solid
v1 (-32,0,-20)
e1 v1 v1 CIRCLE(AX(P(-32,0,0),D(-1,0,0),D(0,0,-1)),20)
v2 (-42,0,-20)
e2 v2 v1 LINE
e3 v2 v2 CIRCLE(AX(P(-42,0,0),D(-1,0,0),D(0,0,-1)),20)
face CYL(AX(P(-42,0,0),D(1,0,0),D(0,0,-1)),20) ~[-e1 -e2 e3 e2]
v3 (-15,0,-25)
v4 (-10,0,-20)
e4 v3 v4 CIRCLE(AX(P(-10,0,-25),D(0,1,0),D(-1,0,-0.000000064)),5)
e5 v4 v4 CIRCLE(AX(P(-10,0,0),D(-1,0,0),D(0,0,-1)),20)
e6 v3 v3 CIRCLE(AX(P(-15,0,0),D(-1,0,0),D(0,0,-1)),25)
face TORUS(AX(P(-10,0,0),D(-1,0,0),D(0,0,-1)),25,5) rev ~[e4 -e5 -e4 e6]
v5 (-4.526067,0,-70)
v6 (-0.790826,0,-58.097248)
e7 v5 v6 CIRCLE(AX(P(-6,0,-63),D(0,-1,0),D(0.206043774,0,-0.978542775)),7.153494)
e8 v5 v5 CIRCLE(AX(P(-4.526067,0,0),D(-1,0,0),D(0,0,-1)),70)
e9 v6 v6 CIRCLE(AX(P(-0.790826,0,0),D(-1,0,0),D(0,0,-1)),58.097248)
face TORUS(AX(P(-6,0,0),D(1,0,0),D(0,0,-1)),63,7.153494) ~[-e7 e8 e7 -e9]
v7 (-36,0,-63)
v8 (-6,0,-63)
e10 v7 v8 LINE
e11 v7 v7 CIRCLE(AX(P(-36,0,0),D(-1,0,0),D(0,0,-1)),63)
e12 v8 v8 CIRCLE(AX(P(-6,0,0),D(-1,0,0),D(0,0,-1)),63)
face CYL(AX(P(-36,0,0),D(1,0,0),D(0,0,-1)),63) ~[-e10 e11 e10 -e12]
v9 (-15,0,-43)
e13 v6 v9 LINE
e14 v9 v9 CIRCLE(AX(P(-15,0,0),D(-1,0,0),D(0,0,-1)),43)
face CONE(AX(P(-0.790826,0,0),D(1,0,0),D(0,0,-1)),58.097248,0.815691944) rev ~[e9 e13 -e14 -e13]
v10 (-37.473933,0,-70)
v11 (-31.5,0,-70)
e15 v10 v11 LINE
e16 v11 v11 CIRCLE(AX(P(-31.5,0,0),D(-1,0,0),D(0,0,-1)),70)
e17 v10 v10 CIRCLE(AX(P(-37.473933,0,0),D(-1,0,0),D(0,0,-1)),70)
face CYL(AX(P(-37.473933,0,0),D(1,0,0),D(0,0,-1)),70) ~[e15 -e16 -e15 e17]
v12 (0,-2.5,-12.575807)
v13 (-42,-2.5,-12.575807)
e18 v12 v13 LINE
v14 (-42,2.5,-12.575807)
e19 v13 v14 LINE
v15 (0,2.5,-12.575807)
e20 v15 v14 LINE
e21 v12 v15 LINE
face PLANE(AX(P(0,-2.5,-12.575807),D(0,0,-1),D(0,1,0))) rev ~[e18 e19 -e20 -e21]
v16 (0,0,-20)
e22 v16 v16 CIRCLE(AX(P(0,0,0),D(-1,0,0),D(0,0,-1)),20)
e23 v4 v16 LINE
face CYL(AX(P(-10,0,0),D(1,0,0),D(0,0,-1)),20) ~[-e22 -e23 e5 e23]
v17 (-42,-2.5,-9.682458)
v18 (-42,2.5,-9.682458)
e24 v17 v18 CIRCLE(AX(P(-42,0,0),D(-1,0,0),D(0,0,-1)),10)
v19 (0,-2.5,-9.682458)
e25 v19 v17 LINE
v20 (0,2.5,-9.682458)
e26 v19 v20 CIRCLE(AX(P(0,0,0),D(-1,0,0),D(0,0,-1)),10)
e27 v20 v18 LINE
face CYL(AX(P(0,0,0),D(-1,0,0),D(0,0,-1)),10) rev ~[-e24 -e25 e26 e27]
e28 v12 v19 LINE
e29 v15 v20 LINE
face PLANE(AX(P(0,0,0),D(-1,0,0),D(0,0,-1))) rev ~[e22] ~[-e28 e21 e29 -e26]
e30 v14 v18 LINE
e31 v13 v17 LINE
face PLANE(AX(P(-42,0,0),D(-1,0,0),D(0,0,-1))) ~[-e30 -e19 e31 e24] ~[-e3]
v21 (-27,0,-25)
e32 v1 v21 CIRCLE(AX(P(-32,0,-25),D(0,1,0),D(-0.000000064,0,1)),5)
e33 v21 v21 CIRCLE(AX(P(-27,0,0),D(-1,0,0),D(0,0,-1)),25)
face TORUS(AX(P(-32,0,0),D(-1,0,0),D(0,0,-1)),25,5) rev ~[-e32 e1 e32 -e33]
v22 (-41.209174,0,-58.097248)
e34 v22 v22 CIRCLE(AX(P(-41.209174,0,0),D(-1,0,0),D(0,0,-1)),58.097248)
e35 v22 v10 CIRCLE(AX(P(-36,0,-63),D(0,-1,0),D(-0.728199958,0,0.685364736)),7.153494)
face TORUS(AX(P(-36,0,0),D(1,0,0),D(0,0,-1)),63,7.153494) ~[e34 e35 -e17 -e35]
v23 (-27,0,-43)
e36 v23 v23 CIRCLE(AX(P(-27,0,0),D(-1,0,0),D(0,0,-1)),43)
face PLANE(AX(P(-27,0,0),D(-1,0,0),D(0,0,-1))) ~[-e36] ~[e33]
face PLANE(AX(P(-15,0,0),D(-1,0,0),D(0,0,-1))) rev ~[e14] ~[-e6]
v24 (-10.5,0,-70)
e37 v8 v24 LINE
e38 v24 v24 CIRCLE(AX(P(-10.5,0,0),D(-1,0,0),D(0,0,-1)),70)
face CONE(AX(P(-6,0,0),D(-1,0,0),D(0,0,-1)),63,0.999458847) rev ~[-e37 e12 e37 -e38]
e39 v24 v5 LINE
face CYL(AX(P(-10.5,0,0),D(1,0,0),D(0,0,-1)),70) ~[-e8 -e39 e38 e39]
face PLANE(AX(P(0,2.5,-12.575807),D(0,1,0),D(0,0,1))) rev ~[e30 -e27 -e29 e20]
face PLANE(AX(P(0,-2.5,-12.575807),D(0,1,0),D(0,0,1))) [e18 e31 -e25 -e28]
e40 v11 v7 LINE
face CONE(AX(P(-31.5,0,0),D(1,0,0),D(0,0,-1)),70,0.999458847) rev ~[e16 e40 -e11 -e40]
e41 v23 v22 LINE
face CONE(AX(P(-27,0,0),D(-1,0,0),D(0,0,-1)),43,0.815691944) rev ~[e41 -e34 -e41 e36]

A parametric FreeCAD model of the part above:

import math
import FreeCAD as App
import Part
import Sketcher

V = App.Vector


def add_polygon(sketch, points):
    """Adds a closed chain of lines whose ends are joined by coincident constraints."""
    first, n = sketch.GeometryCount, len(points)
    for a, b in zip(points, points[1:] + points[:1]):
        sketch.addGeometry(Part.LineSegment(App.Vector(*a, 0), App.Vector(*b, 0)), False)
    for i in range(n):
        sketch.addConstraint(Sketcher.Constraint("Coincident", first + i, 2, first + (i + 1) % n, 1))

doc = App.newDocument("Part")
body = doc.addObject("PartDesign::Body", "Body")

# Sketch on XZ plane
sketch1 = body.newObject("Sketcher::SketchObject", "Sketch")
sketch1.AttachmentSupport = (doc.getObject("XZ_Plane"), [""])
sketch1.MapMode = "FlatFace"
sketch1.addGeometry(Part.LineSegment(V(0, -10, 0), V(-42, -10, 0)), False)
sketch1.addGeometry(Part.LineSegment(V(-42, -10, 0), V(-42, -20, 0)), False)
sketch1.addGeometry(Part.LineSegment(V(-42, -20, 0), V(-32, -20, 0)), False)
sketch1.addGeometry(Part.ArcOfCircle(Part.Circle(V(-32, -25, 0), V(0, 0, 1), 5), math.radians(0), math.radians(90)), False)
sketch1.addGeometry(Part.LineSegment(V(-27, -25, 0), V(-27, -43, 0)), False)
sketch1.addGeometry(Part.LineSegment(V(-27, -43, 0), V(-41.2, -58.1, 0)), False)
sketch1.addGeometry(Part.ArcOfCircle(Part.Circle(V(-36, -63, 0), V(0, 0, 1), 7.2), math.radians(137), math.radians(258)), False)
sketch1.addGeometry(Part.LineSegment(V(-37.5, -70, 0), V(-31.5, -70, 0)), False)
sketch1.addGeometry(Part.LineSegment(V(-31.5, -70, 0), V(-36, -63, 0)), False)
sketch1.addGeometry(Part.LineSegment(V(-36, -63, 0), V(-6, -63, 0)), False)
sketch1.addGeometry(Part.LineSegment(V(-6, -63, 0), V(-10.5, -70, 0)), False)
sketch1.addGeometry(Part.LineSegment(V(-10.5, -70, 0), V(-4.5, -70, 0)), False)
sketch1.addGeometry(Part.ArcOfCircle(Part.Circle(V(-6, -63, 0), V(0, 0, 1), 7.2), math.radians(-78), math.radians(43)), False)
sketch1.addGeometry(Part.LineSegment(V(-0.8, -58.1, 0), V(-15, -43, 0)), False)
sketch1.addGeometry(Part.LineSegment(V(-15, -43, 0), V(-15, -25, 0)), False)
sketch1.addGeometry(Part.ArcOfCircle(Part.Circle(V(-10, -25, 0), V(0, 0, 1), 5), math.radians(90), math.radians(180)), False)
sketch1.addGeometry(Part.LineSegment(V(-10, -20, 0), V(0, -20, 0)), False)
sketch1.addGeometry(Part.LineSegment(V(0, -20, 0), V(0, -10, 0)), False)
sketch1.addConstraint(Sketcher.Constraint("Coincident", 0, 2, 1, 1))
sketch1.addConstraint(Sketcher.Constraint("Coincident", 1, 2, 2, 1))
sketch1.addConstraint(Sketcher.Constraint("Tangent", 2, 2, 3, 2))
sketch1.addConstraint(Sketcher.Constraint("Tangent", 3, 1, 4, 1))
sketch1.addConstraint(Sketcher.Constraint("Coincident", 4, 2, 5, 1))
sketch1.addConstraint(Sketcher.Constraint("Tangent", 5, 2, 6, 1))
sketch1.addConstraint(Sketcher.Constraint("Coincident", 6, 2, 7, 1))
sketch1.addConstraint(Sketcher.Constraint("Coincident", 7, 2, 8, 1))
sketch1.addConstraint(Sketcher.Constraint("Coincident", 8, 2, 9, 1))
sketch1.addConstraint(Sketcher.Constraint("Coincident", 9, 2, 10, 1))
sketch1.addConstraint(Sketcher.Constraint("Coincident", 10, 2, 11, 1))
sketch1.addConstraint(Sketcher.Constraint("Coincident", 11, 2, 12, 1))
sketch1.addConstraint(Sketcher.Constraint("Tangent", 12, 2, 13, 1))
sketch1.addConstraint(Sketcher.Constraint("Coincident", 13, 2, 14, 1))
sketch1.addConstraint(Sketcher.Constraint("Tangent", 14, 2, 15, 2))
sketch1.addConstraint(Sketcher.Constraint("Tangent", 15, 1, 16, 1))
sketch1.addConstraint(Sketcher.Constraint("Coincident", 16, 2, 17, 1))
sketch1.addConstraint(Sketcher.Constraint("Coincident", 17, 2, 0, 1))
sketch1.addConstraint(Sketcher.Constraint("Horizontal", 0))
sketch1.addConstraint(Sketcher.Constraint("Vertical", 1))
sketch1.addConstraint(Sketcher.Constraint("Horizontal", 2))
sketch1.addConstraint(Sketcher.Constraint("Vertical", 4))
sketch1.addConstraint(Sketcher.Constraint("Horizontal", 7))
sketch1.addConstraint(Sketcher.Constraint("Horizontal", 9))
sketch1.addConstraint(Sketcher.Constraint("Horizontal", 11))
sketch1.addConstraint(Sketcher.Constraint("Vertical", 14))
sketch1.addConstraint(Sketcher.Constraint("Horizontal", 16))
sketch1.addConstraint(Sketcher.Constraint("Vertical", 17))
sketch1.addConstraint(Sketcher.Constraint("Coincident", 8, 2, 6, 3))
sketch1.addConstraint(Sketcher.Constraint("Coincident", 9, 2, 12, 3))
sketch1.addConstraint(Sketcher.Constraint("Equal", 6, 12))
sketch1.addConstraint(Sketcher.Constraint("Equal", 3, 15))
sketch1.addConstraint(Sketcher.Constraint("PointOnObject", 16, 2, -2))
sketch1.addConstraint(Sketcher.Constraint("Horizontal", 3, 3, 15, 3))
sketch1.addConstraint(Sketcher.Constraint("Horizontal", 7, 2, 10, 2))
sketch1.addConstraint(Sketcher.Constraint("Horizontal", 5, 2, 12, 2))
sketch1.addConstraint(Sketcher.Constraint("Horizontal", 4, 2, 13, 2))
sketch1.addConstraint(Sketcher.Constraint("Equal", 7, 11))
sketch1.addConstraint(Sketcher.Constraint("Equal", 2, 16))
sketch1.addConstraint(Sketcher.Constraint("Equal", 16, 1))
sketch1.addConstraint(Sketcher.Constraint("Radius", 3, 5.0))
sketch1.addConstraint(Sketcher.Constraint("DistanceX", 0, 2, 0, 1, 42.0))
sketch1.addConstraint(Sketcher.Constraint("DistanceX", 2, 1, 2, 2, 10.0))
sketch1.addConstraint(Sketcher.Constraint("DistanceX", 9, 1, 9, 2, 30.0))
sketch1.addConstraint(Sketcher.Constraint("DistanceY", 4, 2, 4, 1, 18.0))
sketch1.addConstraint(Sketcher.Constraint("DistanceY", 3, 3, -1, 1, 25.0))
sketch1.addConstraint(Sketcher.Constraint("DistanceY", 6, 3, -1, 1, 63.0))
sketch1.addConstraint(Sketcher.Constraint("DistanceY", 6, 2, -1, 1, 70.0))
sketch1.addConstraint(Sketcher.Constraint("DistanceX", 7, 2, 10, 2, 21.0))
sketch1.addConstraint(Sketcher.Constraint("Radius", 6, 7.153494))
revolution = body.newObject("PartDesign::Revolution", "Revolution")
revolution.Profile = sketch1
revolution.ReferenceAxis = (sketch1, ["H_Axis"])
revolution.Angle = 360

# Sketch on YZ plane
sketch2 = body.newObject("Sketcher::SketchObject", "Sketch001")
sketch2.AttachmentSupport = (doc.getObject("YZ_Plane"), [""])
sketch2.MapMode = "FlatFace"
add_polygon(sketch2, [(-2.5, -9.6), (-2.5, -12.6), (2.5, -12.6), (2.5, -9.6)])  # lines 0-3
sketch2.addConstraint(Sketcher.Constraint("Vertical", 0))
sketch2.addConstraint(Sketcher.Constraint("Horizontal", 1))
sketch2.addConstraint(Sketcher.Constraint("Vertical", 2))
sketch2.addConstraint(Sketcher.Constraint("Horizontal", 3))
sketch2.addConstraint(Sketcher.Constraint("DistanceX", 1, 1, 1, 2, 5.0))
sketch2.addConstraint(Sketcher.Constraint("DistanceY", 0, 2, 0, 1, 3.0))
sketch2.addConstraint(Sketcher.Constraint("DistanceX", 0, 2, -1, 1, 2.5))
sketch2.addConstraint(Sketcher.Constraint("DistanceY", 0, 2, -1, 1, 12.575807))
pocket1 = body.newObject("PartDesign::Pocket", "Pocket")
pocket1.Profile = sketch2
pocket1.Length = 53.1

doc.recompute()
